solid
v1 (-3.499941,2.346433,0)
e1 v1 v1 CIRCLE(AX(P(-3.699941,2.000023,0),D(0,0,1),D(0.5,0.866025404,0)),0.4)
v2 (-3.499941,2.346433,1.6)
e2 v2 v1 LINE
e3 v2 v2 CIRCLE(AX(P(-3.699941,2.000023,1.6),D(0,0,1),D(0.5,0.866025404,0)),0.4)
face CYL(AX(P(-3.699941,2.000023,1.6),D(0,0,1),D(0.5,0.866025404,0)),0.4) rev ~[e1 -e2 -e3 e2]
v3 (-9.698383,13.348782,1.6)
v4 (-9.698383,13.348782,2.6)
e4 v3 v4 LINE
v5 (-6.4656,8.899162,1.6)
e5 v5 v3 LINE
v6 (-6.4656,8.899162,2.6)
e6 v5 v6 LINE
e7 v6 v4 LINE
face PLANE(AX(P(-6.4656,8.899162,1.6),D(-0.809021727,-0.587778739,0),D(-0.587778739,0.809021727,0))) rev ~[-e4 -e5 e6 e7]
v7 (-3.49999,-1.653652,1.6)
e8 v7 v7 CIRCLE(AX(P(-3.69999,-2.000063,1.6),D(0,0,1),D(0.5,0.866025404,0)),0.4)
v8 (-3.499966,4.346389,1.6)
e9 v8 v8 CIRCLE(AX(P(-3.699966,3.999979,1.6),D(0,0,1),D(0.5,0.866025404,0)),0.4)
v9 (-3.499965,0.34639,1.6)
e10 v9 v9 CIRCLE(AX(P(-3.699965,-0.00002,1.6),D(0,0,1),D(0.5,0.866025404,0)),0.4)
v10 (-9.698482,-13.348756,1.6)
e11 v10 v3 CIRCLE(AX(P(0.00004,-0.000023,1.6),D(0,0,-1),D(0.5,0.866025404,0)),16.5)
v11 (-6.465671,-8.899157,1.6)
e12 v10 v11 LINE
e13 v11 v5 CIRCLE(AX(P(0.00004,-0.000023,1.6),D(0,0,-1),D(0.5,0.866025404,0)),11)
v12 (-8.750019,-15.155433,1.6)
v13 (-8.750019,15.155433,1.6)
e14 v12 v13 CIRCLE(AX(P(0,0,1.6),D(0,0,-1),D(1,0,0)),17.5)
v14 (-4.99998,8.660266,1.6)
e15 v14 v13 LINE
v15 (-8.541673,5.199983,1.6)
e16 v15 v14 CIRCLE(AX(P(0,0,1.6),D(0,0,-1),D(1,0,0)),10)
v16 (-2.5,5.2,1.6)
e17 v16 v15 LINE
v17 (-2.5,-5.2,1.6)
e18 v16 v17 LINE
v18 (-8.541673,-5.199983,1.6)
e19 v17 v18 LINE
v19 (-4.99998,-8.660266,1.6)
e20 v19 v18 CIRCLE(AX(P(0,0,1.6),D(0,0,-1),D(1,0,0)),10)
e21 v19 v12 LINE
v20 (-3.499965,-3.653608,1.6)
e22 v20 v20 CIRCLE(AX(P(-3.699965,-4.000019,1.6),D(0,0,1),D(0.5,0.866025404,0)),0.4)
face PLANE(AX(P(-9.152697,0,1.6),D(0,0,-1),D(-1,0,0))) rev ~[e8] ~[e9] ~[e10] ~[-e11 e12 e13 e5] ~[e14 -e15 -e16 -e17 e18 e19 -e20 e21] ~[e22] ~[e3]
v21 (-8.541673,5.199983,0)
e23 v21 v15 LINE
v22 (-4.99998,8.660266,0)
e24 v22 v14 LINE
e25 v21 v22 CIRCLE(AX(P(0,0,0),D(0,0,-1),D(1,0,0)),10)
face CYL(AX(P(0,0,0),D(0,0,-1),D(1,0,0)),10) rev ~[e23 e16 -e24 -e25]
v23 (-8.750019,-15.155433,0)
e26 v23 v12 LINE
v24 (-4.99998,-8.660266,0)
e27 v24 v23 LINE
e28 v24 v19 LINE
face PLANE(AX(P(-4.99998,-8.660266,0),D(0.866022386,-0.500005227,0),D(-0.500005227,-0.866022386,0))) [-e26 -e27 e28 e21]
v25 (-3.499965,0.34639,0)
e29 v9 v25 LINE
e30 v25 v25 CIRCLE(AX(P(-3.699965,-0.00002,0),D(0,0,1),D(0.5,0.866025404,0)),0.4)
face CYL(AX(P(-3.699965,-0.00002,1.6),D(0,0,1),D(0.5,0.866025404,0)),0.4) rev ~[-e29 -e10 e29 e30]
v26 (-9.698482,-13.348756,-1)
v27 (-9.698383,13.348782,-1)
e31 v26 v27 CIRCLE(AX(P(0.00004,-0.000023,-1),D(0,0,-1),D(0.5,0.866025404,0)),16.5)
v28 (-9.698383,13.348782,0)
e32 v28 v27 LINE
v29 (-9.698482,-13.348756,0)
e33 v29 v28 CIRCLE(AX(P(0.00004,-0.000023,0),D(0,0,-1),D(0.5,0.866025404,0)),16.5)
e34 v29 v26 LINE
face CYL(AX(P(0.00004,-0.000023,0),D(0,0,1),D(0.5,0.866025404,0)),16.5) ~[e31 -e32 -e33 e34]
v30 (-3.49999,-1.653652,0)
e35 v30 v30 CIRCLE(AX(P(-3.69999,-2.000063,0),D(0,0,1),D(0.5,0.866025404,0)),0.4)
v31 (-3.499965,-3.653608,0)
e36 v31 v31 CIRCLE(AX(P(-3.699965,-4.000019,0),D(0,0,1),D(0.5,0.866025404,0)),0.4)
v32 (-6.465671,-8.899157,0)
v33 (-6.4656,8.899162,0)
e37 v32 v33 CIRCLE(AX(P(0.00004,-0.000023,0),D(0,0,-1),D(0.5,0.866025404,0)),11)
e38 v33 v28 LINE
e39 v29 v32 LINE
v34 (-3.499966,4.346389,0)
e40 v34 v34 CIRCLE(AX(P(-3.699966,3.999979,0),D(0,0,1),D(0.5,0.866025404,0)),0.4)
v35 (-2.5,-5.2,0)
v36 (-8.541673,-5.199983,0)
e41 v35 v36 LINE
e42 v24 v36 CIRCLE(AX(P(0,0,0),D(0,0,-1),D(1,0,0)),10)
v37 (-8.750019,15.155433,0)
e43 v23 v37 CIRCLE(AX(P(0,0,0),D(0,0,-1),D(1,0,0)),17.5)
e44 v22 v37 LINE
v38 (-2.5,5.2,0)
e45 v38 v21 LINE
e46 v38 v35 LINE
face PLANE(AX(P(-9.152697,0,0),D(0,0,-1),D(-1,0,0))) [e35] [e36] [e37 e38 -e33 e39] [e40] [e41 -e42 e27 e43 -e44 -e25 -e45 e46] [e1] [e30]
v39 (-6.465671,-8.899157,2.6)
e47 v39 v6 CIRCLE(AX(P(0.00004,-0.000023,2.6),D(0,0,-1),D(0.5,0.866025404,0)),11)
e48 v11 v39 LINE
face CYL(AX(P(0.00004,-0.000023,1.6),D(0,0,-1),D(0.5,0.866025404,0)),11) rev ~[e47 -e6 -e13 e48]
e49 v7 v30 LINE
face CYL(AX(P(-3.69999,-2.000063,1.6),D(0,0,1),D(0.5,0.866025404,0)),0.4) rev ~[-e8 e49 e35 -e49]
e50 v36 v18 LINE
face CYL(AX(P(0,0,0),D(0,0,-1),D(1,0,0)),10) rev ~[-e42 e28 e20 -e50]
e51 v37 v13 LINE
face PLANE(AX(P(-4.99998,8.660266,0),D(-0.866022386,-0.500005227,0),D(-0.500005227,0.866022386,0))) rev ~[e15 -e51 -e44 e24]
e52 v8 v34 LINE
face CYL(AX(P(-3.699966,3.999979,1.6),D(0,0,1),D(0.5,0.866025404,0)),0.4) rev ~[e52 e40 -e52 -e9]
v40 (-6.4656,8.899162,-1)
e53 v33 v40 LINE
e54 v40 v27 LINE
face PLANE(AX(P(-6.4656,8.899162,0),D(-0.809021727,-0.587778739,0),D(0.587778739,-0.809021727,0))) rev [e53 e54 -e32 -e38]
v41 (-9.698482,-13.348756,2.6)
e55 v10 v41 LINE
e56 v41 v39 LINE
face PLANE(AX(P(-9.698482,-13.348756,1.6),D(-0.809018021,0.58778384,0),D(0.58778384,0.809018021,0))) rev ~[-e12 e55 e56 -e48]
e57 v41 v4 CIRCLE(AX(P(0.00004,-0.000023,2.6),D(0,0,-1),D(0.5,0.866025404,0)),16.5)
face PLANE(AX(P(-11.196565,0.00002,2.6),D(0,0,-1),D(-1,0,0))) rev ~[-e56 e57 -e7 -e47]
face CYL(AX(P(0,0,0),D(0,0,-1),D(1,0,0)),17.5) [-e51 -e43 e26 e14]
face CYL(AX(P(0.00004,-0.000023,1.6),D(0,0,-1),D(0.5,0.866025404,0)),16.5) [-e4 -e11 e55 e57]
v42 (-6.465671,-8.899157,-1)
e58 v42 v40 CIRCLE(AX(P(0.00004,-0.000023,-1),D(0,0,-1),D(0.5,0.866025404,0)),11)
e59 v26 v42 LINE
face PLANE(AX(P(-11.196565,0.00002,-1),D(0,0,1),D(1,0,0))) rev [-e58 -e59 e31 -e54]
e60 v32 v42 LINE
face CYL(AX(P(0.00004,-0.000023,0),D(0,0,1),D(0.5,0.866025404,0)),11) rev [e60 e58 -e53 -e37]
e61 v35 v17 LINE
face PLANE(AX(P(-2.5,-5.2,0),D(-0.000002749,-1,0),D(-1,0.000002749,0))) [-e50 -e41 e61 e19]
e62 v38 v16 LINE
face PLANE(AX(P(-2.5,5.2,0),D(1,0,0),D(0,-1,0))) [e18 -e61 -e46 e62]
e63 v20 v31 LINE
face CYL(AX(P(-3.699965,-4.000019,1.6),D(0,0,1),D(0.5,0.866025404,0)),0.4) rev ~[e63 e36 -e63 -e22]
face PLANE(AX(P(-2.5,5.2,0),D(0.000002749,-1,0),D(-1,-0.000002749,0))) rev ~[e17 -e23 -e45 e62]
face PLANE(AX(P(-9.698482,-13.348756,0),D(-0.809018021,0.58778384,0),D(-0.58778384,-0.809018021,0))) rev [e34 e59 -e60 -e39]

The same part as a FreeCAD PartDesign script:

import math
import FreeCAD as App
import Part
import Sketcher
from FreeCAD import Vector
Q = App.Units.Quantity

doc = App.newDocument("Part")
params = doc.addObject("Spreadsheet::Sheet", "Params")
for row, (alias, value) in enumerate([
    ("sketch1_radius", "10 mm"),
    ("sketch1_radius2", "17.5 mm"),
    ("sketch1_height", "10.4 mm"),
    ("pad1_length", "1.6 mm"),
    ("sketch2_radius", "11 mm"),
    ("sketch2_radius2", "16.5 mm"),
    ("pad2_length", "1 mm"),
    ("sketch3_diameter", "0.8 mm"),
], start=1):
    params.set(f"A{row}", alias)
    params.set(f"B{row}", "=" + value)
    params.setAlias(f"B{row}", alias)

body = doc.addObject("PartDesign::Body", "Body")

# Sketch on XY plane
sketch1 = body.newObject("Sketcher::SketchObject", "Sketch")
sketch1.AttachmentSupport = (doc.getObject("XY_Plane"), [""])
sketch1.MapMode = "FlatFace"
sketch1.addGeometry([
    Part.LineSegment(Vector(-8.5, -5.2, 0), Vector(-2.5, -5.2, 0)),  # 0
    Part.LineSegment(Vector(-2.5, -5.2, 0), Vector(-2.5, 5.2, 0)),  # 1
    Part.LineSegment(Vector(-2.5, 5.2, 0), Vector(-8.5, 5.2, 0)),  # 2
    Part.ArcOfCircle(Part.Circle(Vector(0, 0, 0), Vector(0, 0, 1), 10), math.radians(120), math.radians(149)),  # 3
    Part.LineSegment(Vector(-5, 8.7, 0), Vector(-8.8, 15.2, 0)),  # 4
    Part.ArcOfCircle(Part.Circle(Vector(0, 0, 0), Vector(0, 0, 1), 17.5), math.radians(120), math.radians(240)),  # 5
    Part.LineSegment(Vector(-8.8, -15.2, 0), Vector(-5, -8.7, 0)),  # 6
    Part.ArcOfCircle(Part.Circle(Vector(0, 0, 0), Vector(0, 0, 1), 10), math.radians(-149), math.radians(-120)),  # 7
], False)
sketch1.addConstraint([
    Sketcher.Constraint("Coincident", 0, 2, 1, 1),
    Sketcher.Constraint("Coincident", 1, 2, 2, 1),
    Sketcher.Constraint("Coincident", 2, 2, 3, 2),
    Sketcher.Constraint("Coincident", 3, 1, 4, 1),
    Sketcher.Constraint("Coincident", 4, 2, 5, 1),
    Sketcher.Constraint("Coincident", 5, 2, 6, 1),
    Sketcher.Constraint("Coincident", 6, 2, 7, 2),
    Sketcher.Constraint("Coincident", 7, 1, 0, 1),
    Sketcher.Constraint("Horizontal", 0),
    Sketcher.Constraint("Vertical", 1),
    Sketcher.Constraint("Horizontal", 2),
    Sketcher.Constraint("Coincident", 3, 3, -1, 1),
    Sketcher.Constraint("Coincident", 5, 3, -1, 1),
    Sketcher.Constraint("Coincident", 7, 3, -1, 1),
    Sketcher.Constraint("Equal", 3, 7),
    Sketcher.Constraint("Vertical", 4, 2, 5, 2),
    Sketcher.Constraint("Vertical", 3, 1, 6, 2),
    Sketcher.Constraint("Vertical", 2, 2, 7, 1),
    Sketcher.Constraint("Radius", 3, 10.0),
    Sketcher.Constraint("Radius", 5, 17.5),
    Sketcher.Constraint("Angle", 4, Q("120.0003 deg")),
    Sketcher.Constraint("DistanceY", 1, 1, 1, 2, 10.4),
    Sketcher.Constraint("DistanceX", 3, 1, -1, 1, 5.0),
    Sketcher.Constraint("DistanceX", 0, 2, -1, 1, 2.5),
])
sketch1.setExpression("Constraints[18]", "Params.sketch1_radius")
sketch1.setExpression("Constraints[19]", "Params.sketch1_radius2")
sketch1.setExpression("Constraints[21]", "Params.sketch1_height")
pad1 = body.newObject("PartDesign::Pad", "Pad")
pad1.Profile = sketch1
pad1.setExpression("Length", "Params.pad1_length")

# Sketch on XY plane
sketch2 = body.newObject("Sketcher::SketchObject", "Sketch001")
sketch2.AttachmentSupport = (doc.getObject("XY_Plane"), [""])
sketch2.MapMode = "FlatFace"
sketch2.AttachmentOffset = App.Placement(Vector(0, 0, 1.6), App.Rotation())
sketch2.addGeometry([
    Part.ArcOfCircle(Part.Circle(Vector(0, 0, 0), Vector(0, 0, 1), 16), math.radians(126), math.radians(234)),
    Part.LineSegment(Vector(-10, -13, 0), Vector(-6, -9, 0)),
    Part.ArcOfCircle(Part.Circle(Vector(0, 0, 0), Vector(0, 0, 1), 11), math.radians(126), math.radians(234)),
    Part.LineSegment(Vector(-6, 9, 0), Vector(-10, 13, 0)),
], False)
sketch2.addConstraint([
    Sketcher.Constraint("Coincident", 0, 2, 1, 1),
    Sketcher.Constraint("Coincident", 1, 2, 2, 2),
    Sketcher.Constraint("Coincident", 2, 1, 3, 1),
    Sketcher.Constraint("Coincident", 3, 2, 0, 1),
    Sketcher.Constraint("Coincident", 0, 3, -1, 1),
    Sketcher.Constraint("Coincident", 2, 3, -1, 1),
    Sketcher.Constraint("Vertical", 1, 2, 2, 1),
    Sketcher.Constraint("Vertical", 0, 2, 3, 2),
    Sketcher.Constraint("Radius", 2, 11.0),
    Sketcher.Constraint("Radius", 0, 16.5),
    Sketcher.Constraint("Angle", 1, Q("54 deg")),
    Sketcher.Constraint("DistanceY", 1, 2, 0, 3, 8.899),
])
sketch2.setExpression("Constraints[8]", "Params.sketch2_radius")
sketch2.setExpression("Constraints[9]", "Params.sketch2_radius2")
pad2 = body.newObject("PartDesign::Pad", "Pad001")
pad2.Profile = sketch2
pad2.setExpression("Length", "Params.pad2_length")
doc.recompute()

datumplane = body.newObject("PartDesign::Plane", "DatumPlane")
datumplane.AttachmentSupport = (doc.getObject("XY_Plane"), [""])
datumplane.MapMode = "FlatFace"
datumplane.AttachmentOffset = App.Placement(Vector(0, 0, 0.8), App.Rotation())
mirrored = body.newObject("PartDesign::Mirrored", "Mirrored")
mirrored.Originals = [pad2]
mirrored.MirrorPlane = (datumplane, [""])
body.Tip = mirrored

# Sketch on XY plane
sketch3 = body.newObject("Sketcher::SketchObject", "Sketch002")
sketch3.AttachmentSupport = (doc.getObject("XY_Plane"), [""])
sketch3.MapMode = "FlatFace"
sketch3.AttachmentOffset = App.Placement(Vector(0, 0, 1.6), App.Rotation())
sketch3.addGeometry([
    Part.Circle(Vector(-3.7, 4, 0), Vector(0, 0, 1), 0.4),  # 0
    Part.Circle(Vector(-3.7, 2, 0), Vector(0, 0, 1), 0.4),  # 1
    Part.Circle(Vector(-3.7, 0, 0), Vector(0, 0, 1), 0.4),  # 2
    Part.Circle(Vector(-3.7, -2, 0), Vector(0, 0, 1), 0.4),  # 3
    Part.Circle(Vector(-3.7, -4, 0), Vector(0, 0, 1), 0.4),  # 4
], False)
sketch3.addConstraint([
    Sketcher.Constraint("Equal", 0, 1),
    Sketcher.Constraint("Equal", 1, 2),
    Sketcher.Constraint("Equal", 2, 3),
    Sketcher.Constraint("Equal", 3, 4),
    Sketcher.Constraint("Symmetric", 1, 3, 3, 3, -1),
    Sketcher.Constraint("Symmetric", 0, 3, 4, 3, -1),
    Sketcher.Constraint("PointOnObject", 2, 3, -1),
    Sketcher.Constraint("Vertical", 0, 3, 1, 3),
    Sketcher.Constraint("Vertical", 1, 3, 2, 3),
    Sketcher.Constraint("Diameter", 0, 0.8),
    Sketcher.Constraint("DistanceY", -1, 1, 0, 3, 4.0),
    Sketcher.Constraint("DistanceY", -1, 1, 1, 3, 2.0),
    Sketcher.Constraint("DistanceX", 0, 3, -1, 1, 3.7),
])
sketch3.setExpression("Constraints[9]", "Params.sketch3_diameter")
pocket1 = body.newObject("PartDesign::Pocket", "Pocket")
pocket1.Profile = sketch3
pocket1.Type = "ThroughAll"

doc.recompute()
